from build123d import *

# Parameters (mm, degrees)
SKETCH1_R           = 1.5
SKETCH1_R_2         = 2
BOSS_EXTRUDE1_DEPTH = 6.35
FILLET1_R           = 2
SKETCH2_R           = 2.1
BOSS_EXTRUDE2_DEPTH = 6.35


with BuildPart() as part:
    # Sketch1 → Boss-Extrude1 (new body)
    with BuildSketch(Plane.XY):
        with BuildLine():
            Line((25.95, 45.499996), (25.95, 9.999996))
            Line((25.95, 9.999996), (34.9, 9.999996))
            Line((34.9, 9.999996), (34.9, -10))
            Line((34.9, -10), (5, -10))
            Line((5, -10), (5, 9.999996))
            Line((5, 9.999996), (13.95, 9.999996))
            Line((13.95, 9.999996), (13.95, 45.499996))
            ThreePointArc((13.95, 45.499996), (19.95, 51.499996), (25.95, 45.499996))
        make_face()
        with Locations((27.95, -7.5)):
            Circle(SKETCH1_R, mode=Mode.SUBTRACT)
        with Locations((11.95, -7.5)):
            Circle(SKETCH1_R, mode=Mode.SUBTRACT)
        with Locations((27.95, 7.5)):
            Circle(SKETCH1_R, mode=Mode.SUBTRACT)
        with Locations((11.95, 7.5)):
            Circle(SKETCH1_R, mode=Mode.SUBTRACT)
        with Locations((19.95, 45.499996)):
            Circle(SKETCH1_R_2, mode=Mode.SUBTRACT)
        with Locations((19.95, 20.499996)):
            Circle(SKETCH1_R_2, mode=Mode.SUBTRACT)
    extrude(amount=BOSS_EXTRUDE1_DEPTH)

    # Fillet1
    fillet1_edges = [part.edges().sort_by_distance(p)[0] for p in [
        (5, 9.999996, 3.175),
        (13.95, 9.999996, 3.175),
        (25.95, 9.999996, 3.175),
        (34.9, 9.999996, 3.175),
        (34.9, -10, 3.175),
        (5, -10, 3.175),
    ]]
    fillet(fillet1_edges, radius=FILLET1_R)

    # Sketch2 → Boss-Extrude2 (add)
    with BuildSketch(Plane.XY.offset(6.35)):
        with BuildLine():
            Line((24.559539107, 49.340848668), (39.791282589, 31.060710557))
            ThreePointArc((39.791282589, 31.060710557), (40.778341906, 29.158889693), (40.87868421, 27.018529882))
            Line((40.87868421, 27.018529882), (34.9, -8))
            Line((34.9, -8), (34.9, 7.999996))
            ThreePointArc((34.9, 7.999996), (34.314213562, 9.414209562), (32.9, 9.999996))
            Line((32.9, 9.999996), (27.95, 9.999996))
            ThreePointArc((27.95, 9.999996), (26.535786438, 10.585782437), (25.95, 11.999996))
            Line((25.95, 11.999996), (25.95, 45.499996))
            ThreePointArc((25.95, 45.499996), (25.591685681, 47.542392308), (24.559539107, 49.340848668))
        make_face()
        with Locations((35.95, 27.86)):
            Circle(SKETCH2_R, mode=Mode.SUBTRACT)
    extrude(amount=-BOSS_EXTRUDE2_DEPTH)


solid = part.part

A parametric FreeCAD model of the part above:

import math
import FreeCAD as App
import Part
import Sketcher

V = App.Vector
Q = App.Units.Quantity


def edges_at(feature, points):
    """Names of the edges that pass closest to the given points."""
    edges = feature.Shape.Edges
    near = lambda p: min(range(len(edges)), key=lambda i: edges[i].distToShape(Part.Vertex(*p))[0])
    return sorted({f"Edge{near(p) + 1}" for p in points})

doc = App.newDocument("Part")
body = doc.addObject("PartDesign::Body", "Body")

sketch1 = body.newObject("Sketcher::SketchObject", "Sketch")
sketch1.AttachmentSupport = (doc.getObject("XY_Plane"), [""])
sketch1.MapMode = "FlatFace"
sketch1.addGeometry([
    Part.LineSegment(V(25.9, 10, 0), V(25.9, 45.5, 0)),
    Part.ArcOfCircle(Part.Circle(V(19.9, 45.5, 0), V(0, 0, 1), 6), math.radians(0), math.radians(180)),
    Part.LineSegment(V(13.9, 45.5, 0), V(13.9, 10, 0)),
    Part.LineSegment(V(13.9, 10, 0), V(5, 10, 0)),
    Part.LineSegment(V(5, 10, 0), V(5, -10, 0)),
    Part.LineSegment(V(5, -10, 0), V(34.9, -10, 0)),
    Part.LineSegment(V(34.9, -10, 0), V(34.9, 10, 0)),
    Part.LineSegment(V(34.9, 10, 0), V(25.9, 10, 0)),
    Part.Circle(V(27.9, -7.5, 0), V(0, 0, 1), 1.5),
    Part.Circle(V(27.9, 7.5, 0), V(0, 0, 1), 1.5),
    Part.Circle(V(11.9, -7.5, 0), V(0, 0, 1), 1.5),
    Part.Circle(V(11.9, 7.5, 0), V(0, 0, 1), 1.5),
    Part.Circle(V(19.9, 20.5, 0), V(0, 0, 1), 2),
    Part.Circle(V(19.9, 45.5, 0), V(0, 0, 1), 2),
], False)
sketch1.addConstraint([
    Sketcher.Constraint("Tangent", 0, 2, 1, 1),
    Sketcher.Constraint("Tangent", 1, 2, 2, 1),
    Sketcher.Constraint("Coincident", 2, 2, 3, 1),
    Sketcher.Constraint("Coincident", 3, 2, 4, 1),
    Sketcher.Constraint("Coincident", 4, 2, 5, 1),
    Sketcher.Constraint("Coincident", 5, 2, 6, 1),
    Sketcher.Constraint("Coincident", 6, 2, 7, 1),
    Sketcher.Constraint("Coincident", 7, 2, 0, 1),
    Sketcher.Constraint("Vertical", 0),
    Sketcher.Constraint("Vertical", 2),
    Sketcher.Constraint("Horizontal", 3),
    Sketcher.Constraint("Vertical", 4),
    Sketcher.Constraint("Horizontal", 5),
    Sketcher.Constraint("Vertical", 6),
    Sketcher.Constraint("Horizontal", 7),
    Sketcher.Constraint("Coincident", 13, 3, 1, 3),
    Sketcher.Constraint("Equal", 8, 9),
    Sketcher.Constraint("Equal", 9, 10),
    Sketcher.Constraint("Equal", 10, 11),
    Sketcher.Constraint("Equal", 12, 13),
    Sketcher.Constraint("Symmetric", 8, 3, 9, 3, -1),
    Sketcher.Constraint("Symmetric", 10, 3, 11, 3, -1),
    Sketcher.Constraint("Horizontal", 8, 3, 10, 3),
    Sketcher.Constraint("Horizontal", 3, 2, 6, 2),
    Sketcher.Constraint("Vertical", 1, 3, 12, 3),
    Sketcher.Constraint("Equal", 3, 7),
    Sketcher.Constraint("Diameter", 8, Q("3 mm")),
    Sketcher.Constraint("Diameter", 12, Q("4 mm")),
    Sketcher.Constraint("Radius", 1, Q("6 mm")),
    Sketcher.Constraint("DistanceX", 5, 1, 5, 2, Q("29.9 mm")),
    Sketcher.Constraint("DistanceY", 0, 1, 0, 2, Q("35.5 mm")),
    Sketcher.Constraint("DistanceX", -1, 1, 3, 2, Q("5 mm")),
    Sketcher.Constraint("DistanceY", 4, 2, -1, 1, Q("10 mm")),
    Sketcher.Constraint("DistanceX", 1, 3, 8, 3, Q("8 mm")),
    Sketcher.Constraint("DistanceY", 8, 3, 9, 3, Q("15 mm")),
    Sketcher.Constraint("DistanceX", 10, 3, 8, 3, Q("16 mm")),
    Sketcher.Constraint("DistanceY", 12, 3, 1, 3, Q("25 mm")),
    Sketcher.Constraint("DistanceY", 4, 2, 4, 1, Q("19.999996 mm")),
])
pad1 = body.newObject("PartDesign::Pad", "Pad")
pad1.Profile = sketch1
pad1.Length = 6.35
doc.recompute()

fillet = body.newObject("PartDesign::Fillet", "Fillet")
fillet.Base = (pad1, edges_at(pad1, [
    (5, 10, 3.175),
    (13.95, 10, 3.175),
    (25.95, 10, 3.175),
    (34.9, 10, 3.175),
    (34.9, -10, 3.175),
    (5, -10, 3.175),
]))
fillet.Radius = 2

sketch2 = body.newObject("Sketcher::SketchObject", "Sketch001")
sketch2.AttachmentSupport = (doc.getObject("XY_Plane"), [""])
sketch2.MapMode = "FlatFace"
sketch2.AttachmentOffset = App.Placement(V(0, 0, 6.35), App.Rotation())
sketch2.addGeometry([
    Part.LineSegment(V(39.8, 31.1, 0), V(24.6, 49.3, 0)),
    Part.ArcOfCircle(Part.Circle(V(20, 45.5, 0), V(0, 0, 1), 6), math.radians(0), math.radians(40)),
    Part.LineSegment(V(25.9, 45.5, 0), V(25.9, 12, 0)),
    Part.ArcOfCircle(Part.Circle(V(27.9, 12, 0), V(0, 0, 1), 2), math.radians(180), math.radians(270)),
    Part.LineSegment(V(27.9, 10, 0), V(32.9, 10, 0)),
    Part.ArcOfCircle(Part.Circle(V(32.9, 8, 0), V(0, 0, 1), 2), math.radians(0), math.radians(90)),
    Part.LineSegment(V(34.9, 8, 0), V(34.9, -8, 0)),
    Part.LineSegment(V(34.9, -8, 0), V(40.9, 27, 0)),
    Part.ArcOfCircle(Part.Circle(V(35.9, 27.9, 0), V(0, 0, 1), 5), math.radians(-10), math.radians(40)),
    Part.Circle(V(36, 27.9, 0), V(0, 0, 1), 2.1),
], False)
sketch2.addConstraint([
    Sketcher.Constraint("Tangent", 0, 2, 1, 2),
    Sketcher.Constraint("Tangent", 1, 1, 2, 1),
    Sketcher.Constraint("Tangent", 2, 2, 3, 1),
    Sketcher.Constraint("Tangent", 3, 2, 4, 1),
    Sketcher.Constraint("Tangent", 4, 2, 5, 2),
    Sketcher.Constraint("Tangent", 5, 1, 6, 1),
    Sketcher.Constraint("Coincident", 6, 2, 7, 1),
    Sketcher.Constraint("Tangent", 7, 2, 8, 1),
    Sketcher.Constraint("Tangent", 8, 2, 0, 1),
    Sketcher.Constraint("Vertical", 2),
    Sketcher.Constraint("Horizontal", 4),
    Sketcher.Constraint("Vertical", 6),
    Sketcher.Constraint("Coincident", 9, 3, 8, 3),
    Sketcher.Constraint("Equal", 3, 5),
    Sketcher.Constraint("Radius", 1, Q("6 mm")),
    Sketcher.Constraint("Radius", 3, Q("2 mm")),
    Sketcher.Constraint("Radius", 8, Q("5 mm")),
    Sketcher.Constraint("Diameter", 9, Q("4.2 mm")),
    Sketcher.Constraint("DistanceY", 2, 2, 2, 1, Q("33.5 mm")),
    Sketcher.Constraint("DistanceY", 6, 2, -1, 1, Q("8 mm")),
    Sketcher.Constraint("DistanceX", 3, 3, 8, 3, Q("8 mm")),
    Sketcher.Constraint("DistanceX", 4, 1, 4, 2, Q("4.95 mm")),
    Sketcher.Constraint("DistanceX", -1, 1, 5, 3, Q("32.9 mm")),
    Sketcher.Constraint("DistanceY", -1, 1, 8, 3, Q("27.86 mm")),
    Sketcher.Constraint("DistanceX", 8, 2, 7, 2, Q("1.087402 mm")),
])
pad2 = body.newObject("PartDesign::Pad", "Pad001")
pad2.Profile = sketch2
pad2.Length = 6.35
pad2.Reversed = True

doc.recompute()
